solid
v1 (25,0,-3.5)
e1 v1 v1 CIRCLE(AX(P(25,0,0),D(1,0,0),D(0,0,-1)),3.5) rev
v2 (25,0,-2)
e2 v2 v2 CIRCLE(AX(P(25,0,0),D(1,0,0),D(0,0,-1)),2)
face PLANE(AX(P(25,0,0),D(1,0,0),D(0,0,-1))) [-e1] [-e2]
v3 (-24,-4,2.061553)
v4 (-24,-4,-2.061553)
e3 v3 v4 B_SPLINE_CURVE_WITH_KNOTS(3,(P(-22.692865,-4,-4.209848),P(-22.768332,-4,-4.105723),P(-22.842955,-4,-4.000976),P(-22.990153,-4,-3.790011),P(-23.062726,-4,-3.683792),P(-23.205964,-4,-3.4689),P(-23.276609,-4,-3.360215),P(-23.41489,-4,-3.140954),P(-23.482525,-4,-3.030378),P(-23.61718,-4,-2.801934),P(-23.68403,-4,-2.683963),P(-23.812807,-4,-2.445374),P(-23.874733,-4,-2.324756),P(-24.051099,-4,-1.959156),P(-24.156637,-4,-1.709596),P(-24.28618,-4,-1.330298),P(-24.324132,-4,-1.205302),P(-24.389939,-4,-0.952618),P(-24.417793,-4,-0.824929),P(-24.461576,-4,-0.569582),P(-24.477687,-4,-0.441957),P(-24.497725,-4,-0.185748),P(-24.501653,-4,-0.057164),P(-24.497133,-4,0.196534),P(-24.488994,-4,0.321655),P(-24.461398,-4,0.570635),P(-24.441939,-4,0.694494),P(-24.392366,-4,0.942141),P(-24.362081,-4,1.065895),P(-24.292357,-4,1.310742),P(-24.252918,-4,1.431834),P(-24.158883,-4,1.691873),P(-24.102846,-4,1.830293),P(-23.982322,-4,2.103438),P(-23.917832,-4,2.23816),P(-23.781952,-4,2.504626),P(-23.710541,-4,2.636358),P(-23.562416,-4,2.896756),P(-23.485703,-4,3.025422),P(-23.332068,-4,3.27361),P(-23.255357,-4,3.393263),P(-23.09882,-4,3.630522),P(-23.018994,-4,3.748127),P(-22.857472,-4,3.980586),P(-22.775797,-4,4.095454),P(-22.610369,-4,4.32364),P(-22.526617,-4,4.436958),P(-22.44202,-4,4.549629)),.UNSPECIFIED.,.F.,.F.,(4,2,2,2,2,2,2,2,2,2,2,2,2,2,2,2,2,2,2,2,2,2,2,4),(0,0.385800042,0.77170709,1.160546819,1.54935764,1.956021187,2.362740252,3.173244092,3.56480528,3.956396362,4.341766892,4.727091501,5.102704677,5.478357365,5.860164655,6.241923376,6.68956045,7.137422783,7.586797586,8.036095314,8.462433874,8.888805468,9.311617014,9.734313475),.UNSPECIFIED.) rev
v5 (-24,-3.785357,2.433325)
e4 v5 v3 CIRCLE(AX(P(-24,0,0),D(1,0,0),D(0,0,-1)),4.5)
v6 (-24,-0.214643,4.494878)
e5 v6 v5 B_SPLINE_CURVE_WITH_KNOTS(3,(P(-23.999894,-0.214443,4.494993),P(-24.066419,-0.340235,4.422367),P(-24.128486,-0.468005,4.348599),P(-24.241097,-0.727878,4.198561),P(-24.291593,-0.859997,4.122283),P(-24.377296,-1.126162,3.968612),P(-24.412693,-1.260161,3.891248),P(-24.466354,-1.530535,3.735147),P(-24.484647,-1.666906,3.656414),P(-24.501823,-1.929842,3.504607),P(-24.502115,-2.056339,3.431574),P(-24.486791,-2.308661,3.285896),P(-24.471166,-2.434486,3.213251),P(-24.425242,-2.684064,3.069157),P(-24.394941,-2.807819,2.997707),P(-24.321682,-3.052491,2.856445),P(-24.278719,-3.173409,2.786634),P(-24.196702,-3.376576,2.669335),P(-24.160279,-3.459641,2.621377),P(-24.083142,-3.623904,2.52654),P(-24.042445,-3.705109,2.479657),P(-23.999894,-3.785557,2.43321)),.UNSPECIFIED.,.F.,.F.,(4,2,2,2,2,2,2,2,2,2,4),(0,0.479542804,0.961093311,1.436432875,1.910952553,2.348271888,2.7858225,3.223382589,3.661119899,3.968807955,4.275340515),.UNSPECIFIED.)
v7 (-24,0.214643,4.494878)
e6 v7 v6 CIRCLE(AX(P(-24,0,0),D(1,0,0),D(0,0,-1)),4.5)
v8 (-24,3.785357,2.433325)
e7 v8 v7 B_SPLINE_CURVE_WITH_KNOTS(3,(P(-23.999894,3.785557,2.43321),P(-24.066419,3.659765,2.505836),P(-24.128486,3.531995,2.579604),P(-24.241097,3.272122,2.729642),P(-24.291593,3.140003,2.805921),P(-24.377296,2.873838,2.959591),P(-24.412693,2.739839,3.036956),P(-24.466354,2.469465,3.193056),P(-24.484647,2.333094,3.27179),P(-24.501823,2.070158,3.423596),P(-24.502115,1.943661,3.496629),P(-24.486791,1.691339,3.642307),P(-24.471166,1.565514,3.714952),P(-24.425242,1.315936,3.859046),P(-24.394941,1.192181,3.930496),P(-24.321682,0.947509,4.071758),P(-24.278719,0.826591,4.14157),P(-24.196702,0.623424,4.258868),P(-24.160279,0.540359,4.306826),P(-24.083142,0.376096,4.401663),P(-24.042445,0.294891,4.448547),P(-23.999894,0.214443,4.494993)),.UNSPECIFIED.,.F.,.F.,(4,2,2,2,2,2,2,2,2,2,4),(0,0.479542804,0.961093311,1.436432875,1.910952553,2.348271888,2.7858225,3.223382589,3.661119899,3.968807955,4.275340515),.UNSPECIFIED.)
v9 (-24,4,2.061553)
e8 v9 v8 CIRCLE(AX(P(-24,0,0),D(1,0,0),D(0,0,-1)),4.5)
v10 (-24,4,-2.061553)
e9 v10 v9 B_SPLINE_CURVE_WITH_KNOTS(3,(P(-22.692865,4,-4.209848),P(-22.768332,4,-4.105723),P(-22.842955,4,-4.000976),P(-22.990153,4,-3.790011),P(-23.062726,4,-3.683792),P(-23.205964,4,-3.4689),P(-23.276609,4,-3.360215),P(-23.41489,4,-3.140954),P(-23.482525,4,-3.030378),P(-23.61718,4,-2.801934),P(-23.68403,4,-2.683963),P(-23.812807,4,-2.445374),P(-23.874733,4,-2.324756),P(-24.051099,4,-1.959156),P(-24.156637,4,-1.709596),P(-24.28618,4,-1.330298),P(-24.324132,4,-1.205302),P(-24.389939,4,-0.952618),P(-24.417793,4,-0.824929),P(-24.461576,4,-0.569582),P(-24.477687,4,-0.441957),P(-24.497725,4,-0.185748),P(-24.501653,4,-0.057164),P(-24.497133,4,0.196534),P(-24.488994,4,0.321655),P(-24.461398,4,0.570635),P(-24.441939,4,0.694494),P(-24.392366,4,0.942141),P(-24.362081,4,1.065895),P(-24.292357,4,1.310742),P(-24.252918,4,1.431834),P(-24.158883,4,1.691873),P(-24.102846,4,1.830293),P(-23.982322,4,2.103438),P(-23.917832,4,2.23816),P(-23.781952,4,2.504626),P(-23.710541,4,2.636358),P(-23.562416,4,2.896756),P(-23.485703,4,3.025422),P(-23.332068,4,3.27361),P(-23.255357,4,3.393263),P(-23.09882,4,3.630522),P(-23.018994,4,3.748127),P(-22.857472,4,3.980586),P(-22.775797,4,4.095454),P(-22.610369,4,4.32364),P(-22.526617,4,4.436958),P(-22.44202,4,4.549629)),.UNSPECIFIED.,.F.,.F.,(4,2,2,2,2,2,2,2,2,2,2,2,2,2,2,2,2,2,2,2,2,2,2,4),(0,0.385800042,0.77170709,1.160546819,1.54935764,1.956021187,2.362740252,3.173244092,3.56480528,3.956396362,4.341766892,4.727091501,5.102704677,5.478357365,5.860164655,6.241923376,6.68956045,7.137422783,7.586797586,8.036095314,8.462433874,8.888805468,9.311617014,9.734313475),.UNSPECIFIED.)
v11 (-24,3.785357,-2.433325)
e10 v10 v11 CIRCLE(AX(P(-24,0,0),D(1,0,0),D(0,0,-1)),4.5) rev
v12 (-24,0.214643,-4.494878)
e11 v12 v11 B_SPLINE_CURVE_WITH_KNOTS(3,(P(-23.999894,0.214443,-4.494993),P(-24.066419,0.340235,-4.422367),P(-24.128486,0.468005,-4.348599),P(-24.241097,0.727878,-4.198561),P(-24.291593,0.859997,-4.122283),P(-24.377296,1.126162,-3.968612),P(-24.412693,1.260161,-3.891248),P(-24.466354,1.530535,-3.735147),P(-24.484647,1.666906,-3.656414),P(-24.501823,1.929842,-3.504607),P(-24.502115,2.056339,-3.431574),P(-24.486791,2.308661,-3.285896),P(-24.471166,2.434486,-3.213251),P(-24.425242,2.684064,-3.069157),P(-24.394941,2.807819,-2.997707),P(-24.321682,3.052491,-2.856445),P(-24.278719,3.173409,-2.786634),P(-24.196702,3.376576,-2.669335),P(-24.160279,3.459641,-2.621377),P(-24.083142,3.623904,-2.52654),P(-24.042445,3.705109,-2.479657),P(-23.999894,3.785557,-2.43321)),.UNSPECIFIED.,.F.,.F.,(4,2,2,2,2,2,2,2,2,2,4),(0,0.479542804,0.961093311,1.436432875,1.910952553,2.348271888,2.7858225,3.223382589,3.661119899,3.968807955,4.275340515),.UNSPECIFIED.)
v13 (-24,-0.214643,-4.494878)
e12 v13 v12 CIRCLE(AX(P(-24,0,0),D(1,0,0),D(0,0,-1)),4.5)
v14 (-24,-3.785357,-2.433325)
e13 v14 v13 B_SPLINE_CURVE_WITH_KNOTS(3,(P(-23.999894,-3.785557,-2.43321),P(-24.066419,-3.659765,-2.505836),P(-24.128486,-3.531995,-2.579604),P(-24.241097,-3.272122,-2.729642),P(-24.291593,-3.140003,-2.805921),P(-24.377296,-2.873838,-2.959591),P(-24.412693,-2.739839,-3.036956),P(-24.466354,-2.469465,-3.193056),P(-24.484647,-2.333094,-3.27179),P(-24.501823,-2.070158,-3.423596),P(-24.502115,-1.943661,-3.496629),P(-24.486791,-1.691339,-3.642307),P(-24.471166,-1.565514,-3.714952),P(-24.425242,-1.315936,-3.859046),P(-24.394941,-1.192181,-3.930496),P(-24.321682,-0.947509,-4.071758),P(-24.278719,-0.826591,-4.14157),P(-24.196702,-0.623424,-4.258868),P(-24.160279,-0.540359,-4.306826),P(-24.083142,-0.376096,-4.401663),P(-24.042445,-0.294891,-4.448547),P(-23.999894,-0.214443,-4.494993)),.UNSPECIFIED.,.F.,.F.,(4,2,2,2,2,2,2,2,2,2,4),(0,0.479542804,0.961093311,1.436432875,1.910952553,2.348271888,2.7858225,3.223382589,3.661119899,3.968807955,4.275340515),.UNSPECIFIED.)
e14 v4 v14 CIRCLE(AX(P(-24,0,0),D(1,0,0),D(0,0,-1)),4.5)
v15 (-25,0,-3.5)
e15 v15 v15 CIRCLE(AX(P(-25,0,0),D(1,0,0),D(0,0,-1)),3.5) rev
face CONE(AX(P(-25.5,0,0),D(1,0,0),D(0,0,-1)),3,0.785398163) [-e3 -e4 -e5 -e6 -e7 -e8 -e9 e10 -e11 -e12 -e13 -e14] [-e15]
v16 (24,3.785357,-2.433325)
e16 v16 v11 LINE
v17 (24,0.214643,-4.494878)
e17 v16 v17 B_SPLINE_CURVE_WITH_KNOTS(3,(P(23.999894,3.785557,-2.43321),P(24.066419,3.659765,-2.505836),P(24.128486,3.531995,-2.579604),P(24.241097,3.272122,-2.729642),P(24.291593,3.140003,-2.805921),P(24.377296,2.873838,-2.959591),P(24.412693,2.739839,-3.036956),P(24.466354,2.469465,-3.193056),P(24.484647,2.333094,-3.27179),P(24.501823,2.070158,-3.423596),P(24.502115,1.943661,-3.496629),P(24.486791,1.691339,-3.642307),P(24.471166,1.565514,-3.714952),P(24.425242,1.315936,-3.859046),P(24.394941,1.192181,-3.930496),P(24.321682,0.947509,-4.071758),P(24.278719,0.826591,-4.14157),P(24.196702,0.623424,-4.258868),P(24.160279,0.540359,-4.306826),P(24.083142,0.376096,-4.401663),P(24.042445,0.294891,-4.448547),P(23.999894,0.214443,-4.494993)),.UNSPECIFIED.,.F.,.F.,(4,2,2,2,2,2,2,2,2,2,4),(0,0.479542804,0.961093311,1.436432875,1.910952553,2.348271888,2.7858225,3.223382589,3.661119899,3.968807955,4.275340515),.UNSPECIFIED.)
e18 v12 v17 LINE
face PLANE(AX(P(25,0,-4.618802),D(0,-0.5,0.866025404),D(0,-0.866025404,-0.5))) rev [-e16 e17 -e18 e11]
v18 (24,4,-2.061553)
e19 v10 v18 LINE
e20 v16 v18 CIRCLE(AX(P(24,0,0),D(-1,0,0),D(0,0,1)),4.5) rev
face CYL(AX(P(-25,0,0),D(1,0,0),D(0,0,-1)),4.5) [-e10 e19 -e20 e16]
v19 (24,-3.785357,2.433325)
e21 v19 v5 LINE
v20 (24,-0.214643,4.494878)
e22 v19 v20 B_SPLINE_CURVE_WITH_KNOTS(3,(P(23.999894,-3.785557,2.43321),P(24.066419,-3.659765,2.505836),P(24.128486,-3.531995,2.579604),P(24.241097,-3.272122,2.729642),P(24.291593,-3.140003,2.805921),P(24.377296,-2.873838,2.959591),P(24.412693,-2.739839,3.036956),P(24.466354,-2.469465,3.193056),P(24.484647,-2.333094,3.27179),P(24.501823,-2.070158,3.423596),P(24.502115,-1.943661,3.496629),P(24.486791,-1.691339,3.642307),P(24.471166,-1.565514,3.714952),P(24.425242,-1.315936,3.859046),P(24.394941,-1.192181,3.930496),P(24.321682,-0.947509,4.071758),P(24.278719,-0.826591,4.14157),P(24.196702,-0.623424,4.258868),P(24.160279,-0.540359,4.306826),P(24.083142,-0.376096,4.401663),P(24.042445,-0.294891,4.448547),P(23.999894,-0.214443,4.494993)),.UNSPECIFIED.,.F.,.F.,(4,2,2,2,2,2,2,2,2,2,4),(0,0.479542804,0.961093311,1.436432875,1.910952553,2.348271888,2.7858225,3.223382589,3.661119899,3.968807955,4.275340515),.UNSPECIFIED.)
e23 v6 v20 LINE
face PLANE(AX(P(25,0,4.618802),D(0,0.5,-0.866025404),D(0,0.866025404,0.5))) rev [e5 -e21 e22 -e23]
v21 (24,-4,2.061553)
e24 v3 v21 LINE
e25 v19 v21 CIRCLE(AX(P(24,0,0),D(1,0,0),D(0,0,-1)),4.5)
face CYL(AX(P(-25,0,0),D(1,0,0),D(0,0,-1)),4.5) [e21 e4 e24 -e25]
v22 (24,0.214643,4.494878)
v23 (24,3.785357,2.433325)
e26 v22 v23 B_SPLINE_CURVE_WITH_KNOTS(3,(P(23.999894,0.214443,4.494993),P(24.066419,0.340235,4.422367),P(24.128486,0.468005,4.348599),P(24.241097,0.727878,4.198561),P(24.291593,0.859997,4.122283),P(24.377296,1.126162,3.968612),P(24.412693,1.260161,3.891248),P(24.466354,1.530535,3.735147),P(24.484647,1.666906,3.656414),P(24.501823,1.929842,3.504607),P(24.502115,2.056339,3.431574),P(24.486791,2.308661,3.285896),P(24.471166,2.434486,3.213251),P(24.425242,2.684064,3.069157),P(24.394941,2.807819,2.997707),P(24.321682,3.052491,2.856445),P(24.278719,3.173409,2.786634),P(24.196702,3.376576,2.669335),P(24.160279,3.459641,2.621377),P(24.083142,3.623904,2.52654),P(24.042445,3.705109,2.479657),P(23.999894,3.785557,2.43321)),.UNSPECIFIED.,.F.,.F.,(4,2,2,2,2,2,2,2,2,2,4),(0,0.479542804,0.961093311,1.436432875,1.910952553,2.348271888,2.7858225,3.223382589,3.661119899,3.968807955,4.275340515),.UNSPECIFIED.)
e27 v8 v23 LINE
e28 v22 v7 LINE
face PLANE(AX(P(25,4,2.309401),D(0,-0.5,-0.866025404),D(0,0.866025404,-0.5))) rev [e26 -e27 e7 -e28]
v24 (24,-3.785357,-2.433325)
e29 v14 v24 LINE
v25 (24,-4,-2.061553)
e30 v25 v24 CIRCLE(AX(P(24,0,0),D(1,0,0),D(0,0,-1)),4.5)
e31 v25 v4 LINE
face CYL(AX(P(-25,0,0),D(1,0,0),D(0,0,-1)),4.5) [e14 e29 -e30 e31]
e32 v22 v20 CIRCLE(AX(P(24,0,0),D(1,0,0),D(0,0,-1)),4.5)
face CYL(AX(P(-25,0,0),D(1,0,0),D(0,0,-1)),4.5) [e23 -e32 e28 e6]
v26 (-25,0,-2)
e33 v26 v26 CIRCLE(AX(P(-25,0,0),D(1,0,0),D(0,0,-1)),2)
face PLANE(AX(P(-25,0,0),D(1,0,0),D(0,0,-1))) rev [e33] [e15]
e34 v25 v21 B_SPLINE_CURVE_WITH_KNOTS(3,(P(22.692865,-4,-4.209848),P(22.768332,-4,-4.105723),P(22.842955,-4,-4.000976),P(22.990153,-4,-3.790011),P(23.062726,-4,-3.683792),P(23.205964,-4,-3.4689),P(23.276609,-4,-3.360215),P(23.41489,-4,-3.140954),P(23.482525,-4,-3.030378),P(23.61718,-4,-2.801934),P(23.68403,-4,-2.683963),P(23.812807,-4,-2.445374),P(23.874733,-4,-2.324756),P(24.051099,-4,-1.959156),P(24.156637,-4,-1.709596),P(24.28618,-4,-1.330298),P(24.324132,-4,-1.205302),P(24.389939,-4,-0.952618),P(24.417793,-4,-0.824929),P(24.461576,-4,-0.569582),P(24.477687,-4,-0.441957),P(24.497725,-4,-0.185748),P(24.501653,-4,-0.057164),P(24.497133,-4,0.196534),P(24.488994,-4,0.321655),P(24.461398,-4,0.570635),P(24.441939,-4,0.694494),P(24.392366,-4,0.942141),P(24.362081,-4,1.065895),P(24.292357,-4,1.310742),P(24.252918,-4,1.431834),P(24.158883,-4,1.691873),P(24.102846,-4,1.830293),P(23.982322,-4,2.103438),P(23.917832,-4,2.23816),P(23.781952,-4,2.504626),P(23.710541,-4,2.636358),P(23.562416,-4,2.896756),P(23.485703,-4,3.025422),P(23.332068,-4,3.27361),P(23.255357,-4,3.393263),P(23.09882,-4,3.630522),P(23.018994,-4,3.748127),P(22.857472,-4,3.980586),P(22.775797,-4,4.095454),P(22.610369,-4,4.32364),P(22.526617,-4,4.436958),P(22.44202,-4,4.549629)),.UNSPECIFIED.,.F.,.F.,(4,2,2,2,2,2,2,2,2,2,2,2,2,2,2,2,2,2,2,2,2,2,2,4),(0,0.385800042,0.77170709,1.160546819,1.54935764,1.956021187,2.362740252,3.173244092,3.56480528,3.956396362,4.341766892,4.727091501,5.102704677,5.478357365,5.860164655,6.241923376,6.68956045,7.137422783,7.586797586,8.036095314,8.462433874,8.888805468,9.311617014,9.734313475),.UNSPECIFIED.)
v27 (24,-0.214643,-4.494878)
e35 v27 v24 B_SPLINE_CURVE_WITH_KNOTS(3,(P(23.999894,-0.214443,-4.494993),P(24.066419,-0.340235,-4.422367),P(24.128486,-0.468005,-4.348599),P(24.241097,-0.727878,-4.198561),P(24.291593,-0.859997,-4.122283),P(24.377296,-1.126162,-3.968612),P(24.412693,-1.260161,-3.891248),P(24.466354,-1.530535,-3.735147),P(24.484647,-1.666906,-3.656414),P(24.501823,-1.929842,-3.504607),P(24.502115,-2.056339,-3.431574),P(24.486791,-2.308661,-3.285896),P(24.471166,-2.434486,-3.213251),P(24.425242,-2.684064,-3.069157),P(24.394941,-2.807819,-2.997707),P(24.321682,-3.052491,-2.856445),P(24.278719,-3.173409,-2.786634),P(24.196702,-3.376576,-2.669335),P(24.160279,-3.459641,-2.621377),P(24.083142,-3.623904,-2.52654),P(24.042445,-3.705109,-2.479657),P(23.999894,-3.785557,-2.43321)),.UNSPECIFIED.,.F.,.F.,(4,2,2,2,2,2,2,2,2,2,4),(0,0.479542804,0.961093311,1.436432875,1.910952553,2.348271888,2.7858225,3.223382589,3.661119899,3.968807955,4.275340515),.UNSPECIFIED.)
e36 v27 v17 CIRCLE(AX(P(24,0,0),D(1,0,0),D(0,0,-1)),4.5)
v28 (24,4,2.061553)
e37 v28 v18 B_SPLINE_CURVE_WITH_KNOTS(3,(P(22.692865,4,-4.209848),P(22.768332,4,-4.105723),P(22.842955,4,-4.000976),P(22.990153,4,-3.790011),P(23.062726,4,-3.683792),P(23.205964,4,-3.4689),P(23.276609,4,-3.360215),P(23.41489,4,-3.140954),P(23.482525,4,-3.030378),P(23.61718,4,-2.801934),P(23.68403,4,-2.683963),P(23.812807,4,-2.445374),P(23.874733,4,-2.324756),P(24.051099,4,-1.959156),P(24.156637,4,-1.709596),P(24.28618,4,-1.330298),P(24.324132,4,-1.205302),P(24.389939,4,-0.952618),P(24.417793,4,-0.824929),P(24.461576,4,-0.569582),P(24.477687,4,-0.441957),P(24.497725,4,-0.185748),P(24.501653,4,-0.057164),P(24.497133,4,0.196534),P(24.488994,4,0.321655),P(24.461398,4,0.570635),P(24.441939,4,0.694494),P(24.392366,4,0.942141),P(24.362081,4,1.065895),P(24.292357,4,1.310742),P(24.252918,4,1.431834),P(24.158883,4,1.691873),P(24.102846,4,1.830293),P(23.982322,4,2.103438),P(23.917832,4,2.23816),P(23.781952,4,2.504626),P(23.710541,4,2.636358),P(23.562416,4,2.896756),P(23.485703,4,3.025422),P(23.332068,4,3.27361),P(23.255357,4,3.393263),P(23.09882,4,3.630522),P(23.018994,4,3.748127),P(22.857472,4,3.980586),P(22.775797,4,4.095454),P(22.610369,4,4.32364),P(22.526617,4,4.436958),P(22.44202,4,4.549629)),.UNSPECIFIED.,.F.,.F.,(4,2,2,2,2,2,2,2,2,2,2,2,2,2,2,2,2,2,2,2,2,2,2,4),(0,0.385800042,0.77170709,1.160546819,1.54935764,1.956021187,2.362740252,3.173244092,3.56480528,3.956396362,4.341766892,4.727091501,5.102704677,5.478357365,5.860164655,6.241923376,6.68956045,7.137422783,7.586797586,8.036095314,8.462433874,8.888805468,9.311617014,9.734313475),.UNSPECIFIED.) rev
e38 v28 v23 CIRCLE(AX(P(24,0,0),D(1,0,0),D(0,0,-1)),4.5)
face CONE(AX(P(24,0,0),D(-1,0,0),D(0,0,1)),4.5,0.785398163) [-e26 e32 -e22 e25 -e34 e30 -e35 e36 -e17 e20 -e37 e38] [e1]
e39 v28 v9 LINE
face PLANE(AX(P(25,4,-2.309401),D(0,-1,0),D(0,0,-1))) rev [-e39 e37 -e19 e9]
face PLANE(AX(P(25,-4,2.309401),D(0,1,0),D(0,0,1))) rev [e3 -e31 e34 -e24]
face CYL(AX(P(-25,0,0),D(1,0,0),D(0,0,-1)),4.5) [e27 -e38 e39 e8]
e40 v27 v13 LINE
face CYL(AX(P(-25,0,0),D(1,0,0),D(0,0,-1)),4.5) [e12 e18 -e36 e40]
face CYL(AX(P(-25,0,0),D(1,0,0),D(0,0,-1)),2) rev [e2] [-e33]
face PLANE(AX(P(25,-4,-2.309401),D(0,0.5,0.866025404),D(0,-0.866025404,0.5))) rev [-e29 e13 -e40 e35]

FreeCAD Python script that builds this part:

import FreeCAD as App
import Part
import Sketcher
from FreeCAD import Vector
Q = App.Units.Quantity


def add_polygon(sketch, points):
    """Adds a closed chain of lines whose ends are joined by coincident constraints."""
    first, n = sketch.GeometryCount, len(points)
    for a, b in zip(points, points[1:] + points[:1]):
        sketch.addGeometry(Part.LineSegment(App.Vector(*a, 0), App.Vector(*b, 0)), False)
    for i in range(n):
        sketch.addConstraint(Sketcher.Constraint("Coincident", first + i, 2, first + (i + 1) % n, 1))

doc = App.newDocument("Part")
body = doc.addObject("PartDesign::Body", "Body")

sketch1 = body.newObject("Sketcher::SketchObject", "Sketch")
sketch1.AttachmentSupport = (doc.getObject("YZ_Plane"), [""])
sketch1.MapMode = "FlatFace"
add_polygon(sketch1, [(0, -4.6), (4, -2.3), (4, 2.3), (0, 4.6), (-4, 2.3), (-4, -2.3)])
sketch1.addConstraint(Sketcher.Constraint("Vertical", 1))
sketch1.addConstraint(Sketcher.Constraint("Vertical", 4))
sketch1.addConstraint(Sketcher.Constraint("Symmetric", 0, 2, 3, 2, -1, 1))
sketch1.addConstraint(Sketcher.Constraint("Symmetric", 2, 2, 5, 2, -1, 1))
sketch1.addConstraint(Sketcher.Constraint("PointOnObject", 2, 2, -2))
sketch1.addConstraint(Sketcher.Constraint("Parallel", 2, 5))
sketch1.addConstraint(Sketcher.Constraint("Horizontal", 1, 2, 3, 2))
sketch1.addConstraint(Sketcher.Constraint("Angle", 0, Q("30 deg")))
sketch1.addConstraint(Sketcher.Constraint("DistanceX", -1, 1, 0, 2, 4.0))
sketch1.addConstraint(Sketcher.Constraint("DistanceY", 0, 2, -1, 1, 2.309401))
pad1 = body.newObject("PartDesign::Pad", "Pad")
pad1.Profile = sketch1
pad1.Length = 50
pad1.Midplane = True

sketch2 = body.newObject("Sketcher::SketchObject", "Sketch001")
sketch2.AttachmentSupport = (doc.getObject("YZ_Plane"), [""])
sketch2.MapMode = "FlatFace"
sketch2.addGeometry(Part.Circle(Vector(0, 0, 0), Vector(0, 0, 1), 5.5), False)
sketch2.addGeometry(Part.Circle(Vector(0, 0, 0), Vector(0, 0, 1), 4.5), False)
sketch2.addConstraint(Sketcher.Constraint("Coincident", 0, 3, -1, 1))
sketch2.addConstraint(Sketcher.Constraint("Coincident", 1, 3, -1, 1))
sketch2.addConstraint(Sketcher.Constraint("Diameter", 0, 11.0))
sketch2.addConstraint(Sketcher.Constraint("Diameter", 1, 9.0))
pocket1 = body.newObject("PartDesign::Pocket", "Pocket")
pocket1.Profile = sketch2
pocket1.Type = "ThroughAll"
pocket1.Midplane = True

sketch3 = body.newObject("Sketcher::SketchObject", "Sketch002")
sketch3.AttachmentSupport = (doc.getObject("YZ_Plane"), [""])
sketch3.MapMode = "FlatFace"
sketch3.addGeometry(Part.Circle(Vector(0, 0, 0), Vector(0, 0, 1), 2), False)
sketch3.addConstraint(Sketcher.Constraint("Coincident", 0, 3, -1, 1))
sketch3.addConstraint(Sketcher.Constraint("Diameter", 0, 4.0))
pocket2 = body.newObject("PartDesign::Pocket", "Pocket001")
pocket2.Profile = sketch3
pocket2.Type = "ThroughAll"
pocket2.Midplane = True

sketch4 = body.newObject("Sketcher::SketchObject", "Sketch003")
sketch4.AttachmentSupport = (doc.getObject("XY_Plane"), [""])
sketch4.MapMode = "FlatFace"
add_polygon(sketch4, [(-24, 4.5), (-25.5, 4.5), (-25.5, 3)])
add_polygon(sketch4, [(24, 4.5), (25.5, 3), (25.5, 4.5)])
sketch4.addConstraint(Sketcher.Constraint("Horizontal", 0))
sketch4.addConstraint(Sketcher.Constraint("Vertical", 1))
sketch4.addConstraint(Sketcher.Constraint("Vertical", 4))
sketch4.addConstraint(Sketcher.Constraint("Horizontal", 5))
sketch4.addConstraint(Sketcher.Constraint("Symmetric", 1, 2, 3, 2, -2))
sketch4.addConstraint(Sketcher.Constraint("Symmetric", 2, 2, 5, 2, -2))
sketch4.addConstraint(Sketcher.Constraint("Perpendicular", 2, 3))
sketch4.addConstraint(Sketcher.Constraint("DistanceX", 0, 2, 0, 1, 1.5))
sketch4.addConstraint(Sketcher.Constraint("DistanceY", -1, 1, 1, 2, 3.0))
sketch4.addConstraint(Sketcher.Constraint("DistanceX", 2, 2, -1, 1, 24.0))
groove = body.newObject("PartDesign::Groove", "Groove")
groove.Profile = sketch4
groove.ReferenceAxis = (sketch4, ["H_Axis"])
groove.Angle = 360

doc.recompute()
